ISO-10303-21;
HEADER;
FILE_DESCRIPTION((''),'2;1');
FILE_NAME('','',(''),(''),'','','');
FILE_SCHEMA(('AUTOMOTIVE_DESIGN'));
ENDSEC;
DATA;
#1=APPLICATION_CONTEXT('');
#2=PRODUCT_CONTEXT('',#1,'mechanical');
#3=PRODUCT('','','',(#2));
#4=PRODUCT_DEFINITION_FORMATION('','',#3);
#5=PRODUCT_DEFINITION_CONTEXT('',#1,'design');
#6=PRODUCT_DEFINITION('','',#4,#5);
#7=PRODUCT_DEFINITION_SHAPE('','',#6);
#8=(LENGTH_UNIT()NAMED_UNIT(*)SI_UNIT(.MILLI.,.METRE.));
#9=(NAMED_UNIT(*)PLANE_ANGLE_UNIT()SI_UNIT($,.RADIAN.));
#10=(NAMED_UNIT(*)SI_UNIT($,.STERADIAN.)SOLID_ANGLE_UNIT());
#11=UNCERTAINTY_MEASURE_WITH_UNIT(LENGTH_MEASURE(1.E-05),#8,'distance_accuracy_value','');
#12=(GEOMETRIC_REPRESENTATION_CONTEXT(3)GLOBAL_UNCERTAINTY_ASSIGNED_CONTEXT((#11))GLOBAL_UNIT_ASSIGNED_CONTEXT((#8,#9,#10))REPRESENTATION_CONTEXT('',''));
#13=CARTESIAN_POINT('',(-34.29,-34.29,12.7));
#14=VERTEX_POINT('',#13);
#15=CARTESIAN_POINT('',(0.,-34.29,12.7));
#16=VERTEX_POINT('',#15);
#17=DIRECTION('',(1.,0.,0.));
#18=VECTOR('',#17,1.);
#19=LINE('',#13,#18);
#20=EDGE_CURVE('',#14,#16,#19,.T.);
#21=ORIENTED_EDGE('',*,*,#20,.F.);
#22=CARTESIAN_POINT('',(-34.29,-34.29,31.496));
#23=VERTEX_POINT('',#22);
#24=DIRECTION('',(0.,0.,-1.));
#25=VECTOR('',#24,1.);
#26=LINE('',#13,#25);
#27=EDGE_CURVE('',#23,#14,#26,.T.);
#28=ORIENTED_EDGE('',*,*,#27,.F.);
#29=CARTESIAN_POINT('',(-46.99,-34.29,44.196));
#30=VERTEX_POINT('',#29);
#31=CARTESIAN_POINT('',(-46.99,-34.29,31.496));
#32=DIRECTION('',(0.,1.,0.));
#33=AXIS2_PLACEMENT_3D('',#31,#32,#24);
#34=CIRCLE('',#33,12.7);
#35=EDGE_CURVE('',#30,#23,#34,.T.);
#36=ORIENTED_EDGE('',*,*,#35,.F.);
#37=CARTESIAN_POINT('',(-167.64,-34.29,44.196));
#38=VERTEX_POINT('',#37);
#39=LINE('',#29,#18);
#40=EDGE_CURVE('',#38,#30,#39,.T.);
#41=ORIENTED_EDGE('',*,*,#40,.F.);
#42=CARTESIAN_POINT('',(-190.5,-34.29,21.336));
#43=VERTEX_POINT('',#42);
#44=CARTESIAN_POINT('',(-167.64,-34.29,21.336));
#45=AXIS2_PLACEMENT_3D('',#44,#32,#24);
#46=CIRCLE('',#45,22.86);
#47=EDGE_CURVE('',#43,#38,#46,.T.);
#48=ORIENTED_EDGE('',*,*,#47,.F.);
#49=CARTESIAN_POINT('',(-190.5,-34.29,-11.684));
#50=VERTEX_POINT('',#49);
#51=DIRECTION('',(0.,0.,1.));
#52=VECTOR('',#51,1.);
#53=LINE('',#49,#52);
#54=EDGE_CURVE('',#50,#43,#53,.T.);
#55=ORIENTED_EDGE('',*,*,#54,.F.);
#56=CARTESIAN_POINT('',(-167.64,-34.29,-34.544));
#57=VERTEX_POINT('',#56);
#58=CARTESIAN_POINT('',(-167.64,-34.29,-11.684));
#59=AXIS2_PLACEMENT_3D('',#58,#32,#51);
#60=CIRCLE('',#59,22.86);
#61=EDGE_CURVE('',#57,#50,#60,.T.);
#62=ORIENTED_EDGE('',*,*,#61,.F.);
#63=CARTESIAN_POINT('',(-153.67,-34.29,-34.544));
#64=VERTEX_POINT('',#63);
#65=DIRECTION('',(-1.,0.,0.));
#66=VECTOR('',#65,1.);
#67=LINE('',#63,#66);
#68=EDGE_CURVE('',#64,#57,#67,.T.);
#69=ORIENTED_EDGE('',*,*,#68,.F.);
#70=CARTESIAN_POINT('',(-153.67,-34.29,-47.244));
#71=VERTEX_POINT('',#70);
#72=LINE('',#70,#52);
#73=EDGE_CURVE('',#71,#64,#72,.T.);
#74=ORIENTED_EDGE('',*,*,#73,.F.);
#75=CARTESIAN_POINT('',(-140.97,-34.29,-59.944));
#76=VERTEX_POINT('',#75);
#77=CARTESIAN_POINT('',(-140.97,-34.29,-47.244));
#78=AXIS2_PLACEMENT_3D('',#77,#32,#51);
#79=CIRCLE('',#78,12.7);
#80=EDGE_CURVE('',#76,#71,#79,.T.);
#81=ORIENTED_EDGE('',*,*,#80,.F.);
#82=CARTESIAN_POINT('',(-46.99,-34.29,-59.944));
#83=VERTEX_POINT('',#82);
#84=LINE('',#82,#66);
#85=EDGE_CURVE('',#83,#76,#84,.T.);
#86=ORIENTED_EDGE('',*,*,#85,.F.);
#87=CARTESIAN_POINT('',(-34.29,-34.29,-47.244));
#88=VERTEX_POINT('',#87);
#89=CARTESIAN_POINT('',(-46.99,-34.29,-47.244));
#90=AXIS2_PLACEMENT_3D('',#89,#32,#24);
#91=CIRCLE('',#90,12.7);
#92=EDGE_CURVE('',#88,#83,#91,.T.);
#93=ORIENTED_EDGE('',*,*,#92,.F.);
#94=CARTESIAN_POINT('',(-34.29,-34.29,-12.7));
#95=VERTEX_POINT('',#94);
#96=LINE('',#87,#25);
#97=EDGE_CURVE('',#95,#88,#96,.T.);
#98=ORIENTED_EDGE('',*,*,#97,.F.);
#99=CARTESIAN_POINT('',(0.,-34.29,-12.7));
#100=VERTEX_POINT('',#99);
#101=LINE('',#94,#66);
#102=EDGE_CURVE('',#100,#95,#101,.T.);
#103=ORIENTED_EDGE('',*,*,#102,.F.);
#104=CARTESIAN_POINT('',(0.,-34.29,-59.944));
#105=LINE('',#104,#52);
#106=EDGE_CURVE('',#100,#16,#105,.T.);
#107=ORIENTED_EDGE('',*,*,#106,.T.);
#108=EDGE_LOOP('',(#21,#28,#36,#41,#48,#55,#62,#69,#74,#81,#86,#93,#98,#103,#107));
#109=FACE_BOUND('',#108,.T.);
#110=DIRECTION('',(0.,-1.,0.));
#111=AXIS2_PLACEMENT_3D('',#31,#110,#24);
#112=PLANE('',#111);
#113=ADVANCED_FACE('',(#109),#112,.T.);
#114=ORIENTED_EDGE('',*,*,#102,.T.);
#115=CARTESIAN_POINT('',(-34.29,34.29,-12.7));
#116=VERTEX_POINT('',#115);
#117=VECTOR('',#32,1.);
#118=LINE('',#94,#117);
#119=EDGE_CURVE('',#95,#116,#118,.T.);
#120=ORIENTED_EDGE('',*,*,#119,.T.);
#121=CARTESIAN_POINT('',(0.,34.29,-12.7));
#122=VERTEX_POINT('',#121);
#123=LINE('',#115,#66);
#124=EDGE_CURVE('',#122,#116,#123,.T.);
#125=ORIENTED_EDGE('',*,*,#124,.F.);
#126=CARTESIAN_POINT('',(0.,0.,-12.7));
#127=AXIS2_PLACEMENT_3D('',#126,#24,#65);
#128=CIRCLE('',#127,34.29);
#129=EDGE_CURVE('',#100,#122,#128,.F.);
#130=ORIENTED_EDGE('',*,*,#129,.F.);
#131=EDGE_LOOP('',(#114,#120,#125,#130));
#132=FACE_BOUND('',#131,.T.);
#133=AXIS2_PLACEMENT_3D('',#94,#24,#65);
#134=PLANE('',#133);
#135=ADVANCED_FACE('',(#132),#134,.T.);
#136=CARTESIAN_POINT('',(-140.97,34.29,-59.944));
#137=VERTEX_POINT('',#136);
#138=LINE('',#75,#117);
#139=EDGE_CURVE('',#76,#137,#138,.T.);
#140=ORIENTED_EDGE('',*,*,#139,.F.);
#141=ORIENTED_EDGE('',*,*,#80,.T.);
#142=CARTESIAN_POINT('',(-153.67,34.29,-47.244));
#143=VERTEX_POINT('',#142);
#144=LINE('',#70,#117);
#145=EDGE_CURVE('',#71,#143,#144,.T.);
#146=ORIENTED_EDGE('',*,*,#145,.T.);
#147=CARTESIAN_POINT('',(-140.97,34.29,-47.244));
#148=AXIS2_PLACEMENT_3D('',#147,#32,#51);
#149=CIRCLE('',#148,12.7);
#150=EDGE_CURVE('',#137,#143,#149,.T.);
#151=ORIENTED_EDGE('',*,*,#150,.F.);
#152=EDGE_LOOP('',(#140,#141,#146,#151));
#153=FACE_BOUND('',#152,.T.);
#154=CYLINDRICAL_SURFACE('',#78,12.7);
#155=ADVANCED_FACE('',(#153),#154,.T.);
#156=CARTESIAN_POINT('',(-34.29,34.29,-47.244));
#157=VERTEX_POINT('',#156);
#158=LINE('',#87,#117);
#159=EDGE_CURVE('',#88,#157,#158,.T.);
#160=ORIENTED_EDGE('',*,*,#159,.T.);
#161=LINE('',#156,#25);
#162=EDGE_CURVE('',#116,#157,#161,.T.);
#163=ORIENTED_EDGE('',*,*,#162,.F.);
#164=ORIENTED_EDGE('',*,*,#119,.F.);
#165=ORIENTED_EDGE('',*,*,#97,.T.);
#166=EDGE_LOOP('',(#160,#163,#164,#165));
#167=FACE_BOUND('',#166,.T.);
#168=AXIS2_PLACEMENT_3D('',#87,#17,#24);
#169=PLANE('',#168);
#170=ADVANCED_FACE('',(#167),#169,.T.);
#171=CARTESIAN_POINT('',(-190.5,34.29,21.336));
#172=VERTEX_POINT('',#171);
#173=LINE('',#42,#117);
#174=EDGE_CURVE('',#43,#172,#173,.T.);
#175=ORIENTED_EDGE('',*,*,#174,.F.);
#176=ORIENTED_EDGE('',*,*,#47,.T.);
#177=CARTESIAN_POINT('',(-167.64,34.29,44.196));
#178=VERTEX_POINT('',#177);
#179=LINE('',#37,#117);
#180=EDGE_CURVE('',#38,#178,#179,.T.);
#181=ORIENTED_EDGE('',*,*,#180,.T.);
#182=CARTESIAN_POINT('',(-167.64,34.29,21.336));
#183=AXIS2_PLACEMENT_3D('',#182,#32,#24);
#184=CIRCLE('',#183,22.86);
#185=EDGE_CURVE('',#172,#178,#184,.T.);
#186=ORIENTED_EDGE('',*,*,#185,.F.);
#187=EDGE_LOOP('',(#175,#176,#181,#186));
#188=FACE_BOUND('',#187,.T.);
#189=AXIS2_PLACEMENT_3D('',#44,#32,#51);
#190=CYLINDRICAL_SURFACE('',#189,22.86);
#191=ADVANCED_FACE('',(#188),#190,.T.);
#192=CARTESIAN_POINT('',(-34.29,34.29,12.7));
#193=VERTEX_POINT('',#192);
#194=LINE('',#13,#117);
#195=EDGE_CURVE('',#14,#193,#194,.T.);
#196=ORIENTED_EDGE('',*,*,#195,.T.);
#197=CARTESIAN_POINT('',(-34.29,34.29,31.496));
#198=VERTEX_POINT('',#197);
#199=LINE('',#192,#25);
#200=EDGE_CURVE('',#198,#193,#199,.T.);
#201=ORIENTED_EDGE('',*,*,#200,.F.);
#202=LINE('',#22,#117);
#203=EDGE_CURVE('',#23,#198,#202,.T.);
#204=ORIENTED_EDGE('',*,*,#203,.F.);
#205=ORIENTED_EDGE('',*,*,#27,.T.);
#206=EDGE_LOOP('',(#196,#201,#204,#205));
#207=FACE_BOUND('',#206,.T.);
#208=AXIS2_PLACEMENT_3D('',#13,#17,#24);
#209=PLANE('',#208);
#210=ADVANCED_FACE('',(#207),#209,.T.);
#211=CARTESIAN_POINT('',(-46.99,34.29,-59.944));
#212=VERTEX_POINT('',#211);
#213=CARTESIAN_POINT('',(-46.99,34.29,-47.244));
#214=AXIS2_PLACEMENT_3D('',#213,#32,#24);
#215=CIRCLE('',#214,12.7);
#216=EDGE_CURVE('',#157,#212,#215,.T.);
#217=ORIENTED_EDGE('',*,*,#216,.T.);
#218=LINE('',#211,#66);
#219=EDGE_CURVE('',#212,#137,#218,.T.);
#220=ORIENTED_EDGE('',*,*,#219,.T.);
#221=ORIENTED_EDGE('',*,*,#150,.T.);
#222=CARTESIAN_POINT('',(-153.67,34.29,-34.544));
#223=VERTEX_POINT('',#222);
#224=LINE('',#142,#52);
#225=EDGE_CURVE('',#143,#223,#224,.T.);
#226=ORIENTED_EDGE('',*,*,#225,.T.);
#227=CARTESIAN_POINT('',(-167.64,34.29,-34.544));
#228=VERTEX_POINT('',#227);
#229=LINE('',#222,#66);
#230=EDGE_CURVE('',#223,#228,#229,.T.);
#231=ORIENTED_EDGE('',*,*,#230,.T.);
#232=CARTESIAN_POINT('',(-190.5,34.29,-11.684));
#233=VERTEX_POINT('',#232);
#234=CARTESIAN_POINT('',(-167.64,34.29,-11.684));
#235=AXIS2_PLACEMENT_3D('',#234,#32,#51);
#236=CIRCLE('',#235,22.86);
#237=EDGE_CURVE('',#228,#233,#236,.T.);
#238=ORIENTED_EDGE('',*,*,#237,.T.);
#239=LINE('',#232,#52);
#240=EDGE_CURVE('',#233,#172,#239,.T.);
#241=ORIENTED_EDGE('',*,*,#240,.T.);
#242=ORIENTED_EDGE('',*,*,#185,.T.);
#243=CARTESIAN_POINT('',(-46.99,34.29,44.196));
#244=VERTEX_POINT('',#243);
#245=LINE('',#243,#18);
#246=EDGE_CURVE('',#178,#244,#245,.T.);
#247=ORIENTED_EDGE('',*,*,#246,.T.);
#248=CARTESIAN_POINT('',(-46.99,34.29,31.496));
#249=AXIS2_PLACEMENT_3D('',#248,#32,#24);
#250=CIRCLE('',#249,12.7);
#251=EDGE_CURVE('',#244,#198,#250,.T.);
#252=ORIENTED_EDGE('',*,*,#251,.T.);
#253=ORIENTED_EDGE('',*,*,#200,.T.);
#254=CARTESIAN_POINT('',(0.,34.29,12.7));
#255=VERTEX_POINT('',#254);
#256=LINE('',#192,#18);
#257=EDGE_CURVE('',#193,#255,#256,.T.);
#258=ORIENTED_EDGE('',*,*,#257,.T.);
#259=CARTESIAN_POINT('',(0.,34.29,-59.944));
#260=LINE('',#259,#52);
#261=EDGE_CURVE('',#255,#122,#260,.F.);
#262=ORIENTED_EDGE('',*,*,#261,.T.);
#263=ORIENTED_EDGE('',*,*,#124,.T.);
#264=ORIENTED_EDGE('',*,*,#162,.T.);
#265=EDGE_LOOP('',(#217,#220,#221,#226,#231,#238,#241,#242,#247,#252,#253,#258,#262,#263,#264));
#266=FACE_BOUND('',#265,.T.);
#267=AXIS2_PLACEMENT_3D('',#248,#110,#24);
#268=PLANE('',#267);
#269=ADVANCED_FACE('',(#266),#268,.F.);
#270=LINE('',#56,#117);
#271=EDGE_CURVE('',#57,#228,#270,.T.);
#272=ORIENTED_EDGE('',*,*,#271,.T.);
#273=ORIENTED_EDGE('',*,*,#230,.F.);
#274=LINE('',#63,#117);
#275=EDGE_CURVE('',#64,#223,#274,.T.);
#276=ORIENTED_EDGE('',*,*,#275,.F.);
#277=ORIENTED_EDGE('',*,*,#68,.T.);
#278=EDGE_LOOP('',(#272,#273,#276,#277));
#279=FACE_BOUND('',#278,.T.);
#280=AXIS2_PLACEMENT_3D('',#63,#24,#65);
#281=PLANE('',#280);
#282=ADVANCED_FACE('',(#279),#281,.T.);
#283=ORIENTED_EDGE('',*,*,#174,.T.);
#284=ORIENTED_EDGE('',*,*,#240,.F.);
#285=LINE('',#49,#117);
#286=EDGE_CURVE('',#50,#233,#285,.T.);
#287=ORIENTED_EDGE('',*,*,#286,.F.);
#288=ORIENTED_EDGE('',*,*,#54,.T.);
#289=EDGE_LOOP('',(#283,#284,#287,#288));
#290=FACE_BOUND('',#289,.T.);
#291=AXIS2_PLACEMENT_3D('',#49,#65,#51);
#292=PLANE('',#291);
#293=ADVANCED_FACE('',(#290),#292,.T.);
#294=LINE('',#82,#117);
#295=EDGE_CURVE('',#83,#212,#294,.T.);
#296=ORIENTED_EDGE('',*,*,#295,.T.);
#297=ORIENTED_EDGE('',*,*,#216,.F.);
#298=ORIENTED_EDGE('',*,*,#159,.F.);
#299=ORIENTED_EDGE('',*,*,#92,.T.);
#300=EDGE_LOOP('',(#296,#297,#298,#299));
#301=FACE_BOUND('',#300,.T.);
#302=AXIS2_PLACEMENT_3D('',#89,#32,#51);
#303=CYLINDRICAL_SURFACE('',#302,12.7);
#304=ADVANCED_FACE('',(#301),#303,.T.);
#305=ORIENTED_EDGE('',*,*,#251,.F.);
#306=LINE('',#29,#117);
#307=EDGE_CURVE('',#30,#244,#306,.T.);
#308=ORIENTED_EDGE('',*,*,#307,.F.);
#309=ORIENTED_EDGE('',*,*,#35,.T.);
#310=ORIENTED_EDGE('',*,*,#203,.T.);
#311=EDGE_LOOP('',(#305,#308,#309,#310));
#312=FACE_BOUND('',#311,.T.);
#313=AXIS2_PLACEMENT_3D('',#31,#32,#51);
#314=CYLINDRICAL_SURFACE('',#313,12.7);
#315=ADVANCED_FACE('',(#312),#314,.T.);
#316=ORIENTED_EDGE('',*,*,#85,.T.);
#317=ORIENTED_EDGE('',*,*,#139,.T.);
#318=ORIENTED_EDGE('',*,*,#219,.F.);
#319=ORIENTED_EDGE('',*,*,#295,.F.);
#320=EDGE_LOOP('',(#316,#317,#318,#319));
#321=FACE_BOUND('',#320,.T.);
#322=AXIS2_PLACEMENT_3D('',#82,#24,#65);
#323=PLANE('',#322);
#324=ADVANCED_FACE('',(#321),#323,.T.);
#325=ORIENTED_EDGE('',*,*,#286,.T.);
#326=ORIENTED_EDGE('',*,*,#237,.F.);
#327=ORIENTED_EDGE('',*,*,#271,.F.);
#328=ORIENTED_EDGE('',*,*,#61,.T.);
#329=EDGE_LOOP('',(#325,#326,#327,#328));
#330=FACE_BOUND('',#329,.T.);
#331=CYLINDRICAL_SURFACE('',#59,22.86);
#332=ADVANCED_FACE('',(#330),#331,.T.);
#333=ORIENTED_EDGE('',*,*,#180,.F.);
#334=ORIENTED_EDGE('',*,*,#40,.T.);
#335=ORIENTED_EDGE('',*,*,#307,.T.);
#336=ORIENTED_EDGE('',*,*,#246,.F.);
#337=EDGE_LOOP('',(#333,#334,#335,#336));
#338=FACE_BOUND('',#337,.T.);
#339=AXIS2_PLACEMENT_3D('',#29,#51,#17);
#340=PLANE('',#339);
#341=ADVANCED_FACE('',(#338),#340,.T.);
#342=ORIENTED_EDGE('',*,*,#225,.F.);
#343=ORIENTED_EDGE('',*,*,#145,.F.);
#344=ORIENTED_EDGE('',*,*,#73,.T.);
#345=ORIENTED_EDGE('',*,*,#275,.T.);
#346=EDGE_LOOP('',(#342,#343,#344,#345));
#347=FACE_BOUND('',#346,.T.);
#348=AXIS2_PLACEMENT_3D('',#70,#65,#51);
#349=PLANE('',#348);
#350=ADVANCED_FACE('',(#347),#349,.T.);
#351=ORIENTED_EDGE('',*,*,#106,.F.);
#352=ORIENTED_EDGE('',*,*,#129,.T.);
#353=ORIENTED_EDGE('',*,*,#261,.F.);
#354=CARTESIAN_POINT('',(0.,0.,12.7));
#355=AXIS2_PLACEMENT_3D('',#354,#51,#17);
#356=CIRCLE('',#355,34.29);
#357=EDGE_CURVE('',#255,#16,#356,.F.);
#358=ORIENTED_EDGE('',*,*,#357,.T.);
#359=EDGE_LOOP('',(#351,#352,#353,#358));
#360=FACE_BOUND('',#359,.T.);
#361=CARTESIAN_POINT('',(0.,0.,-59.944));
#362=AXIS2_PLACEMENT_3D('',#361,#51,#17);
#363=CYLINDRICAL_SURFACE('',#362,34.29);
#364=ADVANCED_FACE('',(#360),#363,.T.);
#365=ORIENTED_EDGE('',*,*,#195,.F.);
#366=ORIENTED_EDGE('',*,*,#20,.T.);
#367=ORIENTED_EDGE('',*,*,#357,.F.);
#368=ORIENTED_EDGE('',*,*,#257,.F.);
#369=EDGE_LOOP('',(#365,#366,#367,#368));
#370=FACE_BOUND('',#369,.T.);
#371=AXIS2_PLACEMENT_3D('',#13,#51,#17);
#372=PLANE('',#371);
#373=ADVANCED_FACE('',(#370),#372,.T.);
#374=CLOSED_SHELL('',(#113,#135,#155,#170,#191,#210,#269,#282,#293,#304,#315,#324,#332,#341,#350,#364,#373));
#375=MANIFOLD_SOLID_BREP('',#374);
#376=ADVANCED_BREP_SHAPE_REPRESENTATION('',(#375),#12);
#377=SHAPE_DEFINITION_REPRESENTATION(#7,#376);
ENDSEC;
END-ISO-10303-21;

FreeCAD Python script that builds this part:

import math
import FreeCAD as App
import Part
import Sketcher
from FreeCAD import Vector
Q = App.Units.Quantity

doc = App.newDocument("Part")
params = doc.addObject("Spreadsheet::Sheet", "Params")
for row, (alias, value) in enumerate([
    ("sketch1_radius", "0.5 in"),
    ("sketch1_radius2", "0.9 in"),
    ("sketch1_height", "1 in"),
    ("sketch1_width", "2.7 in"),
    ("sketch1_width2", "3.7 in"),
    ("pad1_length", "1.35 in"),
    ("pad1_length2", "1.35 in"),
    ("sketch2_radius", "1.35 in"),
], start=1):
    params.set(f"A{row}", alias)
    params.set(f"B{row}", "=" + value)
    params.setAlias(f"B{row}", alias)

body = doc.addObject("PartDesign::Body", "Body")

sketch1 = body.newObject("Sketcher::SketchObject", "Sketch")
sketch1.AttachmentSupport = (doc.getObject("XZ_Plane"), [""])
sketch1.MapMode = "FlatFace"
sketch1.addGeometry([
    Part.LineSegment(Vector(-34, 13, 0), Vector(34, 13, 0)),
    Part.LineSegment(Vector(34, 13, 0), Vector(34, -13, 0)),
    Part.LineSegment(Vector(34, -13, 0), Vector(-34, -13, 0)),
    Part.LineSegment(Vector(-34, -13, 0), Vector(-34, -47, 0)),
    Part.ArcOfCircle(Part.Circle(Vector(-47, -47, 0), Vector(0, 0, 1), 13), math.radians(-90), math.radians(0)),
    Part.LineSegment(Vector(-47, -60, 0), Vector(-141, -60, 0)),
    Part.ArcOfCircle(Part.Circle(Vector(-141, -47, 0), Vector(0, 0, 1), 13), math.radians(180), math.radians(270)),
    Part.LineSegment(Vector(-154, -47, 0), Vector(-154, -35, 0)),
    Part.LineSegment(Vector(-154, -35, 0), Vector(-168, -35, 0)),
    Part.ArcOfCircle(Part.Circle(Vector(-168, -12, 0), Vector(0, 0, 1), 23), math.radians(180), math.radians(270)),
    Part.LineSegment(Vector(-190, -12, 0), Vector(-190, 21, 0)),
    Part.ArcOfCircle(Part.Circle(Vector(-168, 21, 0), Vector(0, 0, 1), 23), math.radians(90), math.radians(180)),
    Part.LineSegment(Vector(-168, 44, 0), Vector(-47, 44, 0)),
    Part.ArcOfCircle(Part.Circle(Vector(-47, 31, 0), Vector(0, 0, 1), 13), math.radians(0), math.radians(90)),
    Part.LineSegment(Vector(-34, 31, 0), Vector(-34, 13, 0)),
], False)
sketch1.addConstraint([
    Sketcher.Constraint("Coincident", 0, 2, 1, 1),
    Sketcher.Constraint("Coincident", 1, 2, 2, 1),
    Sketcher.Constraint("Coincident", 2, 2, 3, 1),
    Sketcher.Constraint("Tangent", 3, 2, 4, 2),
    Sketcher.Constraint("Tangent", 4, 1, 5, 1),
    Sketcher.Constraint("Tangent", 5, 2, 6, 2),
    Sketcher.Constraint("Tangent", 6, 1, 7, 1),
    Sketcher.Constraint("Coincident", 7, 2, 8, 1),
    Sketcher.Constraint("Tangent", 8, 2, 9, 2),
    Sketcher.Constraint("Tangent", 9, 1, 10, 1),
    Sketcher.Constraint("Tangent", 10, 2, 11, 2),
    Sketcher.Constraint("Tangent", 11, 1, 12, 1),
    Sketcher.Constraint("Tangent", 12, 2, 13, 2),
    Sketcher.Constraint("Tangent", 13, 1, 14, 1),
    Sketcher.Constraint("Coincident", 14, 2, 0, 1),
    Sketcher.Constraint("Horizontal", 0),
    Sketcher.Constraint("Vertical", 1),
    Sketcher.Constraint("Horizontal", 2),
    Sketcher.Constraint("Vertical", 3),
    Sketcher.Constraint("Horizontal", 5),
    Sketcher.Constraint("Vertical", 7),
    Sketcher.Constraint("Horizontal", 8),
    Sketcher.Constraint("Vertical", 10),
    Sketcher.Constraint("Horizontal", 12),
    Sketcher.Constraint("Vertical", 14),
    Sketcher.Constraint("Equal", 4, 6),
    Sketcher.Constraint("Equal", 9, 11),
    Sketcher.Constraint("Equal", 6, 13),
    Sketcher.Constraint("Symmetric", 0, 2, 2, 2, -1, 1),
    Sketcher.Constraint("Vertical", 4, 3, 13, 3),
    Sketcher.Constraint("Radius", 4, Q("0.5 in")),
    Sketcher.Constraint("Radius", 9, Q("0.9 in")),
    Sketcher.Constraint("DistanceY", 1, 2, 1, 1, Q("1 in")),
    Sketcher.Constraint("DistanceX", 0, 1, 0, 2, Q("2.7 in")),
    Sketcher.Constraint("DistanceX", 5, 2, 5, 1, Q("3.7 in")),
    Sketcher.Constraint("DistanceY", 7, 1, 7, 2, Q("0.5 in")),
    Sketcher.Constraint("DistanceY", 10, 1, 10, 2, Q("1.3 in")),
    Sketcher.Constraint("DistanceX", 8, 2, 8, 1, Q("0.55 in")),
    Sketcher.Constraint("DistanceY", 3, 2, 3, 1, Q("1.36 in")),
])
sketch1.setExpression("Constraints[30]", "Params.sketch1_radius")
sketch1.setExpression("Constraints[31]", "Params.sketch1_radius2")
sketch1.setExpression("Constraints[32]", "Params.sketch1_height")
sketch1.setExpression("Constraints[33]", "Params.sketch1_width")
sketch1.setExpression("Constraints[34]", "Params.sketch1_width2")
pad1 = body.newObject("PartDesign::Pad", "Pad")
pad1.Profile = sketch1
pad1.Type = "TwoLengths"
pad1.setExpression("Length", "Params.pad1_length")
pad1.setExpression("Length2", "Params.pad1_length2")
pad1.Reversed = True

sketch2 = body.newObject("Sketcher::SketchObject", "Sketch001")
sketch2.AttachmentSupport = (doc.getObject("XY_Plane"), [""])
sketch2.MapMode = "FlatFace"
sketch2.addGeometry([
    Part.LineSegment(Vector(44, 34, 0), Vector(0, 34, 0)),
    Part.ArcOfCircle(Part.Circle(Vector(0, 0, 0), Vector(0, 0, 1), 34), math.radians(-90), math.radians(90)),
    Part.LineSegment(Vector(0, -34, 0), Vector(44, -34, 0)),
    Part.LineSegment(Vector(44, -34, 0), Vector(44, 34, 0)),
], False)
sketch2.addConstraint([
    Sketcher.Constraint("Tangent", 0, 2, 1, 2),
    Sketcher.Constraint("Tangent", 1, 1, 2, 1),
    Sketcher.Constraint("Coincident", 2, 2, 3, 1),
    Sketcher.Constraint("Coincident", 3, 2, 0, 1),
    Sketcher.Constraint("Horizontal", 0),
    Sketcher.Constraint("Horizontal", 2),
    Sketcher.Constraint("Vertical", 3),
    Sketcher.Constraint("Coincident", 1, 3, -1, 1),
    Sketcher.Constraint("Radius", 1, Q("1.35 in")),
    Sketcher.Constraint("DistanceX", 0, 2, 0, 1, Q("44.29 mm")),
])
sketch2.setExpression("Constraints[8]", "Params.sketch2_radius")
pocket1 = body.newObject("PartDesign::Pocket", "Pocket")
pocket1.Profile = sketch2
pocket1.Type = "ThroughAll"
pocket1.Midplane = True

doc.recompute()
